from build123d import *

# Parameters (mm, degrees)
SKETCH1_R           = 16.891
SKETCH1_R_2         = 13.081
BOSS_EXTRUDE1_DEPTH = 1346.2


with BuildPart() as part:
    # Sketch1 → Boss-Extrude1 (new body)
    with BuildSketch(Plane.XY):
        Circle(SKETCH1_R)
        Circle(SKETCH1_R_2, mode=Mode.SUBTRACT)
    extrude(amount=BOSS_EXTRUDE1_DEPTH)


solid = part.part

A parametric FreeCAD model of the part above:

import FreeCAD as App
import Part
import Sketcher
Q = App.Units.Quantity

doc = App.newDocument("Part")
params = doc.addObject("Spreadsheet::Sheet", "Params")
for row, (alias, value) in enumerate([
    ("sketch1_diameter", "1.33 in"),
    ("sketch1_diameter2", "1.03 in"),
    ("pad1_length", "53 in"),
], start=1):
    params.set(f"A{row}", alias)
    params.set(f"B{row}", "=" + value)
    params.setAlias(f"B{row}", alias)

body = doc.addObject("PartDesign::Body", "Body")

# Sketch on XY plane
sketch1 = body.newObject("Sketcher::SketchObject", "Sketch")
sketch1.AttachmentSupport = (doc.getObject("XY_Plane"), [""])
sketch1.MapMode = "FlatFace"
sketch1.addGeometry(Part.Circle(App.Vector(0, 0, 0), App.Vector(0, 0, 1), 17), False)
sketch1.addGeometry(Part.Circle(App.Vector(0, 0, 0), App.Vector(0, 0, 1), 13), False)
sketch1.addConstraint(Sketcher.Constraint("Coincident", 0, 3, -1, 1))
sketch1.addConstraint(Sketcher.Constraint("Coincident", 1, 3, -1, 1))
sketch1.addConstraint(Sketcher.Constraint("Diameter", 0, Q("1.33 in")))
sketch1.addConstraint(Sketcher.Constraint("Diameter", 1, Q("1.03 in")))
sketch1.setExpression("Constraints[2]", "Params.sketch1_diameter")
sketch1.setExpression("Constraints[3]", "Params.sketch1_diameter2")
pad1 = body.newObject("PartDesign::Pad", "Pad")
pad1.Profile = sketch1
pad1.setExpression("Length", "Params.pad1_length")

doc.recompute()
